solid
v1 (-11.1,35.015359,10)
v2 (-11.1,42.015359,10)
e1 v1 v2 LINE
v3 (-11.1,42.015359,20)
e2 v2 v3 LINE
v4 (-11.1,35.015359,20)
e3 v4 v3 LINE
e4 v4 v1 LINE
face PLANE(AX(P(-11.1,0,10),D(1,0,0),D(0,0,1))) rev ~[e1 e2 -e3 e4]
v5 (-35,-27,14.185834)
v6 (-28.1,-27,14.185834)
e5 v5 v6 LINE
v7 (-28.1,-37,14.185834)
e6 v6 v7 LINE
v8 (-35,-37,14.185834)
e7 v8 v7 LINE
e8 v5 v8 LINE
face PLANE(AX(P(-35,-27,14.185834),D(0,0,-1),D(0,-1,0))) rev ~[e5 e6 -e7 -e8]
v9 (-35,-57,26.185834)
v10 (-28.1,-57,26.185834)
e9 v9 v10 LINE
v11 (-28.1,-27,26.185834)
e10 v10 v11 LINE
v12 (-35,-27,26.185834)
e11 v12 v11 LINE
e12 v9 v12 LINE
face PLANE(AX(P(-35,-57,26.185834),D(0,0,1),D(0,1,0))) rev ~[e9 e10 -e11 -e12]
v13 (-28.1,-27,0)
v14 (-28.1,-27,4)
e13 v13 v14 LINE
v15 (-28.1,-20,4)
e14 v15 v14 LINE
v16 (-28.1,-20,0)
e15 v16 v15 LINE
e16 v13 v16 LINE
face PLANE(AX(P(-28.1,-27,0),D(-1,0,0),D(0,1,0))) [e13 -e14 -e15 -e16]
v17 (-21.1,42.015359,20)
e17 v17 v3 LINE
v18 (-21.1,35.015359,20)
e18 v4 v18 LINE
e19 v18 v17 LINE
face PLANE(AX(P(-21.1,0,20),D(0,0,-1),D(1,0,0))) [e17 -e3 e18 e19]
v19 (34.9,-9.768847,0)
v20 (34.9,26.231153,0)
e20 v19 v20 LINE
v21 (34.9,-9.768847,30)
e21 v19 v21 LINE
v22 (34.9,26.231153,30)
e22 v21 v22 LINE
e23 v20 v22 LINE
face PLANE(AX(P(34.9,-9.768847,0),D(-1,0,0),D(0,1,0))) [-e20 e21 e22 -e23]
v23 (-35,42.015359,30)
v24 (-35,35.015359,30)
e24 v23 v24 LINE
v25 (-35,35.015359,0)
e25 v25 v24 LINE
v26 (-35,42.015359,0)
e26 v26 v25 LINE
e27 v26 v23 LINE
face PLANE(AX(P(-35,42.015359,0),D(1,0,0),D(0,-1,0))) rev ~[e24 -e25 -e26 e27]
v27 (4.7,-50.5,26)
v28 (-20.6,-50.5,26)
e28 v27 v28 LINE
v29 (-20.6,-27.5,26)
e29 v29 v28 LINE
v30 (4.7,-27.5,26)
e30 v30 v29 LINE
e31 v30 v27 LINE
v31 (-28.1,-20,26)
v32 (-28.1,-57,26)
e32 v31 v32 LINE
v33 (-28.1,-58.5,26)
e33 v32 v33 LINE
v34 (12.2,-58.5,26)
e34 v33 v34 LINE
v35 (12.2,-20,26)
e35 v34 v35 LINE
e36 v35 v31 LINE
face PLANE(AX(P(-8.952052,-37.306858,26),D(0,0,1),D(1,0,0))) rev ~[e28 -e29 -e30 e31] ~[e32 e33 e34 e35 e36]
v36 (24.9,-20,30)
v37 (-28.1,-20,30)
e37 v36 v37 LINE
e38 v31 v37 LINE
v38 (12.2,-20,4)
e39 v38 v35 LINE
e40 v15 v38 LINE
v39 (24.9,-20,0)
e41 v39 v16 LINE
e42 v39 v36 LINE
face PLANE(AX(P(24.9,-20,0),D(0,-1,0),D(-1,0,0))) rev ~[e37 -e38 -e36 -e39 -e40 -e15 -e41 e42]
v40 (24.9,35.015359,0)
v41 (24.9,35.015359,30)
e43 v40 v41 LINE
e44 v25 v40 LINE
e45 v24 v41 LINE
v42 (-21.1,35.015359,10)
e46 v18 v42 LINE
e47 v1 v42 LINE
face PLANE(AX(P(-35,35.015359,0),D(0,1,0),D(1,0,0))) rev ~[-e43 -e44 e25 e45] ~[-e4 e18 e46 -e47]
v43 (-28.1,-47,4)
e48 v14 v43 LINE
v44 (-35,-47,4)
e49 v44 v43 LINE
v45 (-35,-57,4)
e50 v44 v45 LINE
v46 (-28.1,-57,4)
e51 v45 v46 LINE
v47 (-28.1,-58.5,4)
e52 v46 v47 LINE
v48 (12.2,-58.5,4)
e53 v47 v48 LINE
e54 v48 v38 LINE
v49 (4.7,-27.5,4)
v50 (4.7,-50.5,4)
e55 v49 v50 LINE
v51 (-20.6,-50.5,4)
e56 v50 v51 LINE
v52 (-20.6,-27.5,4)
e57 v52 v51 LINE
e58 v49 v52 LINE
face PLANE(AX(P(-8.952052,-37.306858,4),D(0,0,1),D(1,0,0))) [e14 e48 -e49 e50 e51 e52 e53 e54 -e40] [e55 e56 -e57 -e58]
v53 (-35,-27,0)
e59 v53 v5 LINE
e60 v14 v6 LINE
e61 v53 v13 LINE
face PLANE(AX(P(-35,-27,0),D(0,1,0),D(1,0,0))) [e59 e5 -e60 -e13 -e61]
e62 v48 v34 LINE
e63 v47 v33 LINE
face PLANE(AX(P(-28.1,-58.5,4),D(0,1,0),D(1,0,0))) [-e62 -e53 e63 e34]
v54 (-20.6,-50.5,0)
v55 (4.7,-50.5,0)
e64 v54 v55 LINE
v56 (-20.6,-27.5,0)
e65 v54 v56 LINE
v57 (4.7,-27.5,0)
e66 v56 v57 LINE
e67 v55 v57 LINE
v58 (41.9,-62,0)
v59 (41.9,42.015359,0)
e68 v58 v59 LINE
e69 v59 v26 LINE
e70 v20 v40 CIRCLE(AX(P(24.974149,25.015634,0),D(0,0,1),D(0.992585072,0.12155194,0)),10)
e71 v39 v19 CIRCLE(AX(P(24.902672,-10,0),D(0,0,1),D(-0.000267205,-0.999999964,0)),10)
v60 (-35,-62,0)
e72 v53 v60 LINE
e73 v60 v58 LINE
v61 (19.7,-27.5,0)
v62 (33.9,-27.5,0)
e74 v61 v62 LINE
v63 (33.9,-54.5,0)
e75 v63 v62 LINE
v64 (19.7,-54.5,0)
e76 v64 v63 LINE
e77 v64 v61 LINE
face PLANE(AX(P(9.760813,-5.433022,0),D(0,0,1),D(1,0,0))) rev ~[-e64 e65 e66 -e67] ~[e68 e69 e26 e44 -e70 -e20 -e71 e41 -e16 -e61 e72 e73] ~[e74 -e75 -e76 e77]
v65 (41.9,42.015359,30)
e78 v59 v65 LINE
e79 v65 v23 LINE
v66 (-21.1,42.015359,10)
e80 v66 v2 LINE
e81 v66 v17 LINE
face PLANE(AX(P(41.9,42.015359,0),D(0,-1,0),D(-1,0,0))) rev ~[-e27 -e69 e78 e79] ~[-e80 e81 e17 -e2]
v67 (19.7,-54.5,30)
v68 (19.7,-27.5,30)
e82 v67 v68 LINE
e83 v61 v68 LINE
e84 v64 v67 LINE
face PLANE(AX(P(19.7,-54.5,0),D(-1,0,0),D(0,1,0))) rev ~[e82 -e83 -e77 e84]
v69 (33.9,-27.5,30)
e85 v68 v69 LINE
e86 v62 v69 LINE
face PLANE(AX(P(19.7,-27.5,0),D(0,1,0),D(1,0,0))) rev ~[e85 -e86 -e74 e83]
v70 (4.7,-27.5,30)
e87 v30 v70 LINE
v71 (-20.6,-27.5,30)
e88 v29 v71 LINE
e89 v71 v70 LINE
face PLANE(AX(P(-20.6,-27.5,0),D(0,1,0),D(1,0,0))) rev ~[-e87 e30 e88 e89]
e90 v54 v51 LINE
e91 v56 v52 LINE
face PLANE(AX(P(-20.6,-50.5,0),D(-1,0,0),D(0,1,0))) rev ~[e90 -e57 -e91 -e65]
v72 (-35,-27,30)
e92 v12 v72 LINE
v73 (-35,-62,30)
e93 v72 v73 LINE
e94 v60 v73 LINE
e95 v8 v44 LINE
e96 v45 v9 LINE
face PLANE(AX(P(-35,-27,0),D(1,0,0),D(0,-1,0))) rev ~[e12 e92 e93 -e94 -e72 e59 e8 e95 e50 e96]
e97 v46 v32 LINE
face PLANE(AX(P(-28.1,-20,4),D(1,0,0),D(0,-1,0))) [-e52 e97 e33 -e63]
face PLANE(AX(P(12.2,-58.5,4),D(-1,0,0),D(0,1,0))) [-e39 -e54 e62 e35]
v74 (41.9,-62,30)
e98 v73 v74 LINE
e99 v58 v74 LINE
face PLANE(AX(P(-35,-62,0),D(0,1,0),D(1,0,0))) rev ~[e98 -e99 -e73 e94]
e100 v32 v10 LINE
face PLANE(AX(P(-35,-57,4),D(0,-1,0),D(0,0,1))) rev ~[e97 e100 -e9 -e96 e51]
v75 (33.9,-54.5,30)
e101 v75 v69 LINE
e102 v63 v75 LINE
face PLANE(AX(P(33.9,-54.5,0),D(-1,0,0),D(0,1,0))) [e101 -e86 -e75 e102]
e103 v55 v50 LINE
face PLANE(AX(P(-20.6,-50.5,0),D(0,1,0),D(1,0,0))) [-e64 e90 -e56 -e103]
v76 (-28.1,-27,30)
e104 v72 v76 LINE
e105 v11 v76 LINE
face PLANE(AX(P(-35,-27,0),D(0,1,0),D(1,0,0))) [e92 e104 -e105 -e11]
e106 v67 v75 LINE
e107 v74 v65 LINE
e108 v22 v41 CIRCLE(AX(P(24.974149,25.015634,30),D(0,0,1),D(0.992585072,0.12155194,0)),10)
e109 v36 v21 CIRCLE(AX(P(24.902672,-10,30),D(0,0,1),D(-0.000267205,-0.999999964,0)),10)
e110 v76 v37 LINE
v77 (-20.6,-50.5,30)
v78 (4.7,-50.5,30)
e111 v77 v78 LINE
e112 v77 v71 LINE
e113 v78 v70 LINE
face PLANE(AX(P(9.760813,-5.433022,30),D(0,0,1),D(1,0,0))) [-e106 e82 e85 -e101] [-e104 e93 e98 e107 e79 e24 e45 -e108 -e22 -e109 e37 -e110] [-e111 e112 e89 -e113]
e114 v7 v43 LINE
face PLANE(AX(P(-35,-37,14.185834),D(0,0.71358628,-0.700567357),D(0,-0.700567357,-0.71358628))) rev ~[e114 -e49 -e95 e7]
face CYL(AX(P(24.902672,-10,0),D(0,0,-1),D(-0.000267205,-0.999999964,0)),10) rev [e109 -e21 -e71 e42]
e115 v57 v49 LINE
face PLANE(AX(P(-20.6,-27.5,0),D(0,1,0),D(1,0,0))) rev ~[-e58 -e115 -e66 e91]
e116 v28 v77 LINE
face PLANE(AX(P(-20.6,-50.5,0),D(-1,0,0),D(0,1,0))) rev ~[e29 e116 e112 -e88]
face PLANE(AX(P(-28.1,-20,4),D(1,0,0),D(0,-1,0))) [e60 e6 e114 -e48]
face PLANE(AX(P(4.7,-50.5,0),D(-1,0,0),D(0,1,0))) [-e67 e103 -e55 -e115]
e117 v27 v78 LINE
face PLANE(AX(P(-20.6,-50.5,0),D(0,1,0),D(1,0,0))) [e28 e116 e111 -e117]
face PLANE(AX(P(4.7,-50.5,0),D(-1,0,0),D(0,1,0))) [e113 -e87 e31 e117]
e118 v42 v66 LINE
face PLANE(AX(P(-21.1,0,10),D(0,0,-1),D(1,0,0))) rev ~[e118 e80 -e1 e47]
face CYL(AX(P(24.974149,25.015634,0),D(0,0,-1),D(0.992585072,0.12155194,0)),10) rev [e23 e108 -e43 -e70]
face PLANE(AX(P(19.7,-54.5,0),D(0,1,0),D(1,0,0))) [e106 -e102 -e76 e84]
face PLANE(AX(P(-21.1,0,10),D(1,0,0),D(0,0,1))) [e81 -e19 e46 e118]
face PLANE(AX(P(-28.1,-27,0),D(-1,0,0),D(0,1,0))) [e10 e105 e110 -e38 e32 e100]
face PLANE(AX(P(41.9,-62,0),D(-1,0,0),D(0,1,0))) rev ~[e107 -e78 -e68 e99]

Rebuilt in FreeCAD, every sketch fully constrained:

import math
import FreeCAD as App
import Part
import Sketcher

V = App.Vector
Q = App.Units.Quantity


def add_polygon(sketch, points):
    """Adds a closed chain of lines whose ends are joined by coincident constraints."""
    first, n = sketch.GeometryCount, len(points)
    for a, b in zip(points, points[1:] + points[:1]):
        sketch.addGeometry(Part.LineSegment(App.Vector(*a, 0), App.Vector(*b, 0)), False)
    for i in range(n):
        sketch.addConstraint(Sketcher.Constraint("Coincident", first + i, 2, first + (i + 1) % n, 1))

doc = App.newDocument("Part")
params = doc.addObject("Spreadsheet::Sheet", "Params")
for row, (alias, value) in enumerate([
    ("sketch1_radius", "10 mm"),
    ("sketch1_width", "53 mm"),
    ("sketch1_height", "7 mm"),
    ("sketch1_height2", "36 mm"),
    ("sketch1_height3", "35 mm"),
    ("pad1_length", "30 mm"),
    ("sketch2_width", "6 mm"),
    ("sketch2_width2", "4 mm"),
    ("sketch2_width3", "40.3 mm"),
    ("sketch2_height", "38.5 mm"),
    ("sketch2_height2", "6.5 mm"),
    ("pocket1_length", "22 mm"),
    ("sketch3_width", "30 mm"),
    ("sketch3_width2", "10 mm"),
    ("sketch3_height", "12 mm"),
    ("pocket2_length", "6.9 mm"),
    ("sketch4_height", "23 mm"),
    ("sketch4_height2", "27 mm"),
    ("sketch4_width", "25.3 mm"),
    ("sketch4_width2", "14.2 mm"),
    ("pocket3_length", "30 mm"),
    ("sketch5_width", "10 mm"),
    ("pocket4_length", "50 mm"),
], start=1):
    params.set(f"A{row}", alias)
    params.set(f"B{row}", "=" + value)
    params.setAlias(f"B{row}", alias)

body = doc.addObject("PartDesign::Body", "Body")

# Sketch on XY plane
sketch1 = body.newObject("Sketcher::SketchObject", "Sketch")
sketch1.AttachmentSupport = (doc.getObject("XY_Plane"), [""])
sketch1.MapMode = "FlatFace"
sketch1.addGeometry(Part.LineSegment(V(-35, 42, 0), V(-35, 35, 0)), False)
sketch1.addGeometry(Part.LineSegment(V(-35, 35, 0), V(25, 35, 0)), False)
sketch1.addGeometry(Part.ArcOfCircle(Part.Circle(V(25, 25, 0), V(0, 0, 1), 10), math.radians(7), math.radians(90)), False)
sketch1.addGeometry(Part.LineSegment(V(35, 26, 0), V(35, -10, 0)), False)
sketch1.addGeometry(Part.ArcOfCircle(Part.Circle(V(25, -10, 0), V(0, 0, 1), 10), math.radians(-90), math.radians(1)), False)
sketch1.addGeometry(Part.LineSegment(V(25, -20, 0), V(-28, -20, 0)), False)
sketch1.addGeometry(Part.LineSegment(V(-28, -20, 0), V(-28, -27, 0)), False)
sketch1.addGeometry(Part.LineSegment(V(-28, -27, 0), V(-35, -27, 0)), False)
sketch1.addGeometry(Part.LineSegment(V(-35, -27, 0), V(-35, -62, 0)), False)
sketch1.addGeometry(Part.LineSegment(V(-35, -62, 0), V(42, -62, 0)), False)
sketch1.addGeometry(Part.LineSegment(V(42, -62, 0), V(42, 42, 0)), False)
sketch1.addGeometry(Part.LineSegment(V(42, 42, 0), V(-35, 42, 0)), False)
sketch1.addConstraint(Sketcher.Constraint("Coincident", 0, 2, 1, 1))
sketch1.addConstraint(Sketcher.Constraint("Coincident", 1, 2, 2, 2))
sketch1.addConstraint(Sketcher.Constraint("Coincident", 2, 1, 3, 1))
sketch1.addConstraint(Sketcher.Constraint("Coincident", 3, 2, 4, 2))
sketch1.addConstraint(Sketcher.Constraint("Coincident", 4, 1, 5, 1))
sketch1.addConstraint(Sketcher.Constraint("Coincident", 5, 2, 6, 1))
sketch1.addConstraint(Sketcher.Constraint("Coincident", 6, 2, 7, 1))
sketch1.addConstraint(Sketcher.Constraint("Coincident", 7, 2, 8, 1))
sketch1.addConstraint(Sketcher.Constraint("Coincident", 8, 2, 9, 1))
sketch1.addConstraint(Sketcher.Constraint("Coincident", 9, 2, 10, 1))
sketch1.addConstraint(Sketcher.Constraint("Coincident", 10, 2, 11, 1))
sketch1.addConstraint(Sketcher.Constraint("Coincident", 11, 2, 0, 1))
sketch1.addConstraint(Sketcher.Constraint("Vertical", 0))
sketch1.addConstraint(Sketcher.Constraint("Horizontal", 1))
sketch1.addConstraint(Sketcher.Constraint("Vertical", 3))
sketch1.addConstraint(Sketcher.Constraint("Horizontal", 5))
sketch1.addConstraint(Sketcher.Constraint("Vertical", 6))
sketch1.addConstraint(Sketcher.Constraint("Horizontal", 7))
sketch1.addConstraint(Sketcher.Constraint("Vertical", 8))
sketch1.addConstraint(Sketcher.Constraint("Horizontal", 9))
sketch1.addConstraint(Sketcher.Constraint("Vertical", 10))
sketch1.addConstraint(Sketcher.Constraint("Horizontal", 11))
sketch1.addConstraint(Sketcher.Constraint("Equal", 2, 4))
sketch1.addConstraint(Sketcher.Constraint("Vertical", 1, 2, 4, 1))
sketch1.addConstraint(Sketcher.Constraint("Vertical", 0, 2, 7, 2))
sketch1.addConstraint(Sketcher.Constraint("Equal", 0, 6))
sketch1.addConstraint(Sketcher.Constraint("Radius", 2, Q("10 mm")))
sketch1.addConstraint(Sketcher.Constraint("DistanceX", 5, 2, 5, 1, Q("53 mm")))
sketch1.addConstraint(Sketcher.Constraint("DistanceY", 0, 2, 0, 1, Q("7 mm")))
sketch1.addConstraint(Sketcher.Constraint("DistanceY", 3, 2, 3, 1, Q("36 mm")))
sketch1.addConstraint(Sketcher.Constraint("DistanceY", 8, 2, 8, 1, Q("35 mm")))
sketch1.addConstraint(Sketcher.Constraint("DistanceX", 1, 1, 1, 2, Q("59.9 mm")))
sketch1.addConstraint(Sketcher.Constraint("DistanceX", 9, 1, 9, 2, Q("76.9 mm")))
sketch1.addConstraint(Sketcher.Constraint("DistanceY", 4, 3, -1, 1, Q("10 mm")))
sketch1.addConstraint(Sketcher.Constraint("DistanceX", 0, 2, -1, 1, Q("35 mm")))
sketch1.addConstraint(Sketcher.Constraint("DistanceX", 1, 2, 2, 1, Q("10 mm")))
sketch1.addConstraint(Sketcher.Constraint("DistanceY", 10, 1, 10, 2, Q("104.015359 mm")))
sketch1.addConstraint(Sketcher.Constraint("DistanceX", -1, 1, 2, 3, Q("24.974149 mm")))
sketch1.setExpression("Constraints[26]", "Params.sketch1_radius")
sketch1.setExpression("Constraints[27]", "Params.sketch1_width")
sketch1.setExpression("Constraints[28]", "Params.sketch1_height")
sketch1.setExpression("Constraints[29]", "Params.sketch1_height2")
sketch1.setExpression("Constraints[30]", "Params.sketch1_height3")
pad1 = body.newObject("PartDesign::Pad", "Pad")
pad1.Profile = sketch1
pad1.setExpression("Length", "Params.pad1_length")

# Sketch on XY plane
sketch2 = body.newObject("Sketcher::SketchObject", "Sketch001")
sketch2.AttachmentSupport = (doc.getObject("XY_Plane"), [""])
sketch2.MapMode = "FlatFace"
sketch2.AttachmentOffset = App.Placement(V(0, 0, 4), App.Rotation())
add_polygon(sketch2, [(-28.1, -20), (-28.1, -58.5), (12.2, -58.5), (12.2, -20), (-18.1, -20), (-18.1, -13.5), (-24.1, -13.5), (-24.1, -20)])  # lines 0-7
sketch2.addConstraint(Sketcher.Constraint("Vertical", 0))
sketch2.addConstraint(Sketcher.Constraint("Horizontal", 1))
sketch2.addConstraint(Sketcher.Constraint("Vertical", 2))
sketch2.addConstraint(Sketcher.Constraint("Horizontal", 3))
sketch2.addConstraint(Sketcher.Constraint("Vertical", 4))
sketch2.addConstraint(Sketcher.Constraint("Horizontal", 5))
sketch2.addConstraint(Sketcher.Constraint("Vertical", 6))
sketch2.addConstraint(Sketcher.Constraint("Horizontal", 7))
sketch2.addConstraint(Sketcher.Constraint("Horizontal", 3, 2, 6, 2))
sketch2.addConstraint(Sketcher.Constraint("DistanceX", 5, 2, 5, 1, Q("6 mm")))
sketch2.addConstraint(Sketcher.Constraint("DistanceX", 7, 2, 7, 1, Q("4 mm")))
sketch2.addConstraint(Sketcher.Constraint("DistanceX", 1, 1, 1, 2, Q("40.3 mm")))
sketch2.addConstraint(Sketcher.Constraint("DistanceY", 0, 2, 0, 1, Q("38.5 mm")))
sketch2.addConstraint(Sketcher.Constraint("DistanceY", 4, 1, 4, 2, Q("6.5 mm")))
sketch2.addConstraint(Sketcher.Constraint("DistanceY", 2, 2, -1, 1, Q("20 mm")))
sketch2.addConstraint(Sketcher.Constraint("DistanceX", 0, 2, -1, 1, Q("28.1 mm")))
sketch2.setExpression("Constraints[17]", "Params.sketch2_width")
sketch2.setExpression("Constraints[18]", "Params.sketch2_width2")
sketch2.setExpression("Constraints[19]", "Params.sketch2_width3")
sketch2.setExpression("Constraints[20]", "Params.sketch2_height")
sketch2.setExpression("Constraints[21]", "Params.sketch2_height2")
pocket1 = body.newObject("PartDesign::Pocket", "Pocket")
pocket1.Profile = sketch2
pocket1.setExpression("Length", "Params.pocket1_length")
pocket1.Reversed = True

# Sketch on YZ plane
sketch3 = body.newObject("Sketcher::SketchObject", "Sketch002")
sketch3.AttachmentSupport = (doc.getObject("YZ_Plane"), [""])
sketch3.MapMode = "FlatFace"
sketch3.AttachmentOffset = App.Placement(V(0, 0, -35), App.Rotation())
add_polygon(sketch3, [(-27, 14), (-27, 26), (-57, 26), (-57, 4), (-47, 4), (-37, 14)])  # lines 0-5
sketch3.addConstraint(Sketcher.Constraint("Vertical", 0))
sketch3.addConstraint(Sketcher.Constraint("Horizontal", 1))
sketch3.addConstraint(Sketcher.Constraint("Vertical", 2))
sketch3.addConstraint(Sketcher.Constraint("Horizontal", 3))
sketch3.addConstraint(Sketcher.Constraint("Horizontal", 5))
sketch3.addConstraint(Sketcher.Constraint("Equal", 3, 5))
sketch3.addConstraint(Sketcher.Constraint("DistanceX", 1, 2, 1, 1, Q("30 mm")))
sketch3.addConstraint(Sketcher.Constraint("DistanceX", 3, 1, 3, 2, Q("10 mm")))
sketch3.addConstraint(Sketcher.Constraint("DistanceY", 0, 1, 0, 2, Q("12 mm")))
sketch3.addConstraint(Sketcher.Constraint("DistanceX", 0, 2, -1, 1, Q("27 mm")))
sketch3.addConstraint(Sketcher.Constraint("DistanceY", -1, 1, 2, 2, Q("4 mm")))
sketch3.addConstraint(Sketcher.Constraint("DistanceY", 2, 2, 2, 1, Q("22.185834 mm")))
sketch3.setExpression("Constraints[12]", "Params.sketch3_width")
sketch3.setExpression("Constraints[13]", "Params.sketch3_width2")
sketch3.setExpression("Constraints[14]", "Params.sketch3_height")
pocket2 = body.newObject("PartDesign::Pocket", "Pocket001")
pocket2.Profile = sketch3
pocket2.setExpression("Length", "Params.pocket2_length")
pocket2.Reversed = True

# Sketch on XY plane
sketch4 = body.newObject("Sketcher::SketchObject", "Sketch003")
sketch4.AttachmentSupport = (doc.getObject("XY_Plane"), [""])
sketch4.MapMode = "FlatFace"
add_polygon(sketch4, [(-21, -28), (-21, -50), (5, -50), (5, -28)])  # lines 0-3
add_polygon(sketch4, [(20, -28), (20, -54), (34, -54), (34, -28)])  # lines 4-7
sketch4.addConstraint(Sketcher.Constraint("Vertical", 0))
sketch4.addConstraint(Sketcher.Constraint("Horizontal", 1))
sketch4.addConstraint(Sketcher.Constraint("Vertical", 2))
sketch4.addConstraint(Sketcher.Constraint("Horizontal", 3))
sketch4.addConstraint(Sketcher.Constraint("Vertical", 4))
sketch4.addConstraint(Sketcher.Constraint("Horizontal", 5))
sketch4.addConstraint(Sketcher.Constraint("Vertical", 6))
sketch4.addConstraint(Sketcher.Constraint("Horizontal", 7))
sketch4.addConstraint(Sketcher.Constraint("Horizontal", 3, 2, 6, 2))
sketch4.addConstraint(Sketcher.Constraint("DistanceY", 0, 2, 0, 1, Q("23 mm")))
sketch4.addConstraint(Sketcher.Constraint("DistanceY", 4, 2, 4, 1, Q("27 mm")))
sketch4.addConstraint(Sketcher.Constraint("DistanceX", 1, 1, 1, 2, Q("25.3 mm")))
sketch4.addConstraint(Sketcher.Constraint("DistanceX", 5, 1, 5, 2, Q("14.2 mm")))
sketch4.addConstraint(Sketcher.Constraint("DistanceX", 1, 2, 4, 2, Q("15 mm")))
sketch4.addConstraint(Sketcher.Constraint("DistanceX", 0, 2, -1, 1, Q("20.6 mm")))
sketch4.addConstraint(Sketcher.Constraint("DistanceY", 0, 2, -1, 1, Q("50.5 mm")))
sketch4.setExpression("Constraints[17]", "Params.sketch4_height")
sketch4.setExpression("Constraints[18]", "Params.sketch4_height2")
sketch4.setExpression("Constraints[19]", "Params.sketch4_width")
sketch4.setExpression("Constraints[20]", "Params.sketch4_width2")
pocket3 = body.newObject("PartDesign::Pocket", "Pocket002")
pocket3.Profile = sketch4
pocket3.setExpression("Length", "Params.pocket3_length")
pocket3.Reversed = True

# Sketch on XZ plane
sketch5 = body.newObject("Sketcher::SketchObject", "Sketch004")
sketch5.AttachmentSupport = (doc.getObject("XZ_Plane"), [""])
sketch5.MapMode = "FlatFace"
add_polygon(sketch5, [(-21, 20), (-21, 10), (-11, 10), (-11, 20)])  # lines 0-3
sketch5.addConstraint(Sketcher.Constraint("Vertical", 0))
sketch5.addConstraint(Sketcher.Constraint("Horizontal", 1))
sketch5.addConstraint(Sketcher.Constraint("Vertical", 2))
sketch5.addConstraint(Sketcher.Constraint("Horizontal", 3))
sketch5.addConstraint(Sketcher.Constraint("Equal", 3, 0))
sketch5.addConstraint(Sketcher.Constraint("DistanceX", 1, 1, 1, 2, Q("10 mm")))
sketch5.addConstraint(Sketcher.Constraint("DistanceY", -1, 1, 0, 2, Q("10 mm")))
sketch5.addConstraint(Sketcher.Constraint("DistanceX", 0, 2, -1, 1, Q("21.1 mm")))
sketch5.setExpression("Constraints[9]", "Params.sketch5_width")
pocket4 = body.newObject("PartDesign::Pocket", "Pocket003")
pocket4.Profile = sketch5
pocket4.setExpression("Length", "Params.pocket4_length")

doc.recompute()
